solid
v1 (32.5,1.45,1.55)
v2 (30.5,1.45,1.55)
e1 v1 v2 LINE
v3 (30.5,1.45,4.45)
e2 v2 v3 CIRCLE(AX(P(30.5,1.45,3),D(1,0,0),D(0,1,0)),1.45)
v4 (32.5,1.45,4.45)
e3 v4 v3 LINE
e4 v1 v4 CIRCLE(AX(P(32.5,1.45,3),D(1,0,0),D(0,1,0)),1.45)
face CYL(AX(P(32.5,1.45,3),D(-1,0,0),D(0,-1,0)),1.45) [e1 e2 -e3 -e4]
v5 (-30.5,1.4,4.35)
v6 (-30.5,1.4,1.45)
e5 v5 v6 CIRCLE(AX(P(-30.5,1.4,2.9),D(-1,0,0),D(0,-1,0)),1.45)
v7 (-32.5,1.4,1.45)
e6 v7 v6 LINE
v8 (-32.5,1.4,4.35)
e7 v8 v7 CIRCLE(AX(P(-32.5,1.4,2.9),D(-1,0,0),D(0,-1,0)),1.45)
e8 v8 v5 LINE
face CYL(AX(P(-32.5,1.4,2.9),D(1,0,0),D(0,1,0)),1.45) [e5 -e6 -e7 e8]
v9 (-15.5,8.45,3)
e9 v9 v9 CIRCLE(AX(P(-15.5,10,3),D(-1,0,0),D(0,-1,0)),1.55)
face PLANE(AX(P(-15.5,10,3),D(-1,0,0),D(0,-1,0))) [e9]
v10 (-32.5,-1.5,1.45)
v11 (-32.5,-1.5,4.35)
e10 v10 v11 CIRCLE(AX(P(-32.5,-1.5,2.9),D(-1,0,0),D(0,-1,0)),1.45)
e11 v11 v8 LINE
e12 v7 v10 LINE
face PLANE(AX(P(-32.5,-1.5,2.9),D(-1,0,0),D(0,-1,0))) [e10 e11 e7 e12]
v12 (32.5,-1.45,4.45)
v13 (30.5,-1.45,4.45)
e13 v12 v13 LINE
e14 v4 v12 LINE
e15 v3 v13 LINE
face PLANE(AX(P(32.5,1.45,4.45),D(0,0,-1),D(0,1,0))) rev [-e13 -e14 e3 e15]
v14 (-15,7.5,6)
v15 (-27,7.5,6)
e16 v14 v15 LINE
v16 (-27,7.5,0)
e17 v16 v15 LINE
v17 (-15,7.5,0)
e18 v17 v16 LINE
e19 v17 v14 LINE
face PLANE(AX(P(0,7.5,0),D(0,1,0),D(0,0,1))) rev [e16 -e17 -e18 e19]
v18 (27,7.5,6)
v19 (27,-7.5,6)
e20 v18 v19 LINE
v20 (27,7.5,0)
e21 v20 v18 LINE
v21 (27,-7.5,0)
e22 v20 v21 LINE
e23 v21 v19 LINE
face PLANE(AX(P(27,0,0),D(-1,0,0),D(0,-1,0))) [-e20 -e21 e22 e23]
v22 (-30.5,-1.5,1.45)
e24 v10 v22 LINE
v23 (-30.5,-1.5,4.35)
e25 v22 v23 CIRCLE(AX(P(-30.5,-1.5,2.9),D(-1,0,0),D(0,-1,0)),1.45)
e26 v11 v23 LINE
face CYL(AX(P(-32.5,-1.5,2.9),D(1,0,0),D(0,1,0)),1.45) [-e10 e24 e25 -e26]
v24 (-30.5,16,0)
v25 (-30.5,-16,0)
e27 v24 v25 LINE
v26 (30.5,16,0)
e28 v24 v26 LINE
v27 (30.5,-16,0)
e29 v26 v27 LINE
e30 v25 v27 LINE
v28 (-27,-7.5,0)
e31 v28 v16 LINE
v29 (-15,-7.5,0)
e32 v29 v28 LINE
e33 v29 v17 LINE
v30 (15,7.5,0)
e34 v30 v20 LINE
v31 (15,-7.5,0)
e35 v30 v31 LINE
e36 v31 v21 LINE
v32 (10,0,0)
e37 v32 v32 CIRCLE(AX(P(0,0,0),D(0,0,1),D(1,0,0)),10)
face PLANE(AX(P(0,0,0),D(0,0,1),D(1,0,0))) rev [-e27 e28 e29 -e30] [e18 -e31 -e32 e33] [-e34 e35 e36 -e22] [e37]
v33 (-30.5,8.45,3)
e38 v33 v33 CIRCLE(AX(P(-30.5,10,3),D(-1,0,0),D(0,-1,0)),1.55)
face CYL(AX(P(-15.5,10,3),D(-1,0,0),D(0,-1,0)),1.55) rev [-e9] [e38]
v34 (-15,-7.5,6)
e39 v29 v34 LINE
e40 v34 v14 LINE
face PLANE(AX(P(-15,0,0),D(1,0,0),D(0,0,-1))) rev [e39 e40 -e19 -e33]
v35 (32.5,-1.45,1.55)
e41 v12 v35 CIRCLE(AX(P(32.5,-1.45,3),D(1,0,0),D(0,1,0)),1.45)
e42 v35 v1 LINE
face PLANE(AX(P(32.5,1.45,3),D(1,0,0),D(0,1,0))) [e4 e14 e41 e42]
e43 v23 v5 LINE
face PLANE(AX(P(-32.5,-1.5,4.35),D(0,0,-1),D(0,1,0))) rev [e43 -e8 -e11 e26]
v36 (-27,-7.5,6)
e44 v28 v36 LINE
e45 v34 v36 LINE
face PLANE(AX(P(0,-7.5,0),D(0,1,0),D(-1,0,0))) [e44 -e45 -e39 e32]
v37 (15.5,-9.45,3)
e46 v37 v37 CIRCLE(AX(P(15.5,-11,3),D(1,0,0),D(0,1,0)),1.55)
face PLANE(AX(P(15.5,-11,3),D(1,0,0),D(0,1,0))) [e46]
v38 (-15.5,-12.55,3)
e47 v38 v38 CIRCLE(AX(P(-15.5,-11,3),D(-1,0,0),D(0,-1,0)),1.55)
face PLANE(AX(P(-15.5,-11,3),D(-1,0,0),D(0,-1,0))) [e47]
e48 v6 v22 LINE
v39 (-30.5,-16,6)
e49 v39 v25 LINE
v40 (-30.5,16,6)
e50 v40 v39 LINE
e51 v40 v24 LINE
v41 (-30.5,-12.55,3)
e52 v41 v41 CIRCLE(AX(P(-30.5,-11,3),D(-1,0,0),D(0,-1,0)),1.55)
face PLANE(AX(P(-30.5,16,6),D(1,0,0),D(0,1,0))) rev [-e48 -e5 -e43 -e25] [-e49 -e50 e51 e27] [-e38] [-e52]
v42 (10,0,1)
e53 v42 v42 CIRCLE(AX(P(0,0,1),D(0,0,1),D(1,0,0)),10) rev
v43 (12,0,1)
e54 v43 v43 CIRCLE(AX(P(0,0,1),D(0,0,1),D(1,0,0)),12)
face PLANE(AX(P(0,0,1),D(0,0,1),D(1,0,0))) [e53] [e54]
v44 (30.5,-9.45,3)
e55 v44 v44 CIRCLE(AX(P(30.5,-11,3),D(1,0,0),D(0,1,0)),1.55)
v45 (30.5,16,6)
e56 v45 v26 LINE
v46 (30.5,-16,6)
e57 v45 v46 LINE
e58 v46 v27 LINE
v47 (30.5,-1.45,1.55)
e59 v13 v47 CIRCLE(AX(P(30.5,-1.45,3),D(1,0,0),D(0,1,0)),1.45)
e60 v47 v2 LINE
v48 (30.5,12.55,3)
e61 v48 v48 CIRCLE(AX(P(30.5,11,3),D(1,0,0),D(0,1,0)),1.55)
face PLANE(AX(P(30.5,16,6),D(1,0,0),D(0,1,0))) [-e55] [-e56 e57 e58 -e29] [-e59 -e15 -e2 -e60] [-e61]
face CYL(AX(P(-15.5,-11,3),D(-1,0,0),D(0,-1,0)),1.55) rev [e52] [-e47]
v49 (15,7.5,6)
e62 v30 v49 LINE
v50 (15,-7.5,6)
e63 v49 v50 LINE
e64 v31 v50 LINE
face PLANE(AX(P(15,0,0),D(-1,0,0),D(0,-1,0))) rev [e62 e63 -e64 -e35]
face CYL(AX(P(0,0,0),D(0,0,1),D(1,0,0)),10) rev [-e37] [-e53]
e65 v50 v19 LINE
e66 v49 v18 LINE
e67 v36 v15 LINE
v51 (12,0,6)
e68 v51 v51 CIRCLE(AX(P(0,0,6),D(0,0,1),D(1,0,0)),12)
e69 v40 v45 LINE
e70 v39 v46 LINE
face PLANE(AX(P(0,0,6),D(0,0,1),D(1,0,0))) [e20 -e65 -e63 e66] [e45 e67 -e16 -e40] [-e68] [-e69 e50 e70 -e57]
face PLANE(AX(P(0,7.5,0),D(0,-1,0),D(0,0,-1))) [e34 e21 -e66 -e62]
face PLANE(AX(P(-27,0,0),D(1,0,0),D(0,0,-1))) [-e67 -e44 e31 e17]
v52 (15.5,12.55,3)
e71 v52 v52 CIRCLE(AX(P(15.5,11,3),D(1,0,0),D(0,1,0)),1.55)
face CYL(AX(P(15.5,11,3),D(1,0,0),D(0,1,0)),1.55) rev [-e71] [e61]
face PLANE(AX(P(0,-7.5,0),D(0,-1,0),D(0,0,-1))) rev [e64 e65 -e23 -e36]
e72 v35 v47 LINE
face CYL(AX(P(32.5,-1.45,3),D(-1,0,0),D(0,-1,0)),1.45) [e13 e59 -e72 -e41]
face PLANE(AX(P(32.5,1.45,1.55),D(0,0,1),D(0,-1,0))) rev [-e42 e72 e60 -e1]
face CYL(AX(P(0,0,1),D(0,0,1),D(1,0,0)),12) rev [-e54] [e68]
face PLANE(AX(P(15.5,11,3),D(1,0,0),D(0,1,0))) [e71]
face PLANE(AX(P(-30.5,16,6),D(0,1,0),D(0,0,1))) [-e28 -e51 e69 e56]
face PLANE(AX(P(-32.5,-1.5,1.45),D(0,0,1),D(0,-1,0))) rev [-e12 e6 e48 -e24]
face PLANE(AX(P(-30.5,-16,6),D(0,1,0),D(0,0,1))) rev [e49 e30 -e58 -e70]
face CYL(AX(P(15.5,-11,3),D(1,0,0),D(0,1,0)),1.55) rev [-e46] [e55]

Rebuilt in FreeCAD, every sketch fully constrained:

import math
import FreeCAD as App
import Part
import Sketcher

V = App.Vector
Q = App.Units.Quantity

doc = App.newDocument("Part")
body = doc.addObject("PartDesign::Body", "Body")

# Sketch on XY plane
sketch1 = body.newObject("Sketcher::SketchObject", "Sketch")
sketch1.AttachmentSupport = (doc.getObject("XY_Plane"), [""])
sketch1.MapMode = "FlatFace"
sketch1.addGeometry(Part.LineSegment(V(-30.5, 16, 0), V(-30.5, -16, 0)), False)
sketch1.addGeometry(Part.LineSegment(V(-30.5, -16, 0), V(30.5, -16, 0)), False)
sketch1.addGeometry(Part.LineSegment(V(30.5, -16, 0), V(30.5, 16, 0)), False)
sketch1.addGeometry(Part.LineSegment(V(30.5, 16, 0), V(-30.5, 16, 0)), False)
sketch1.addConstraint(Sketcher.Constraint("Coincident", 0, 2, 1, 1))
sketch1.addConstraint(Sketcher.Constraint("Coincident", 1, 2, 2, 1))
sketch1.addConstraint(Sketcher.Constraint("Coincident", 2, 2, 3, 1))
sketch1.addConstraint(Sketcher.Constraint("Coincident", 3, 2, 0, 1))
sketch1.addConstraint(Sketcher.Constraint("Vertical", 0))
sketch1.addConstraint(Sketcher.Constraint("Horizontal", 1))
sketch1.addConstraint(Sketcher.Constraint("Vertical", 2))
sketch1.addConstraint(Sketcher.Constraint("Horizontal", 3))
sketch1.addConstraint(Sketcher.Constraint("Symmetric", 0, 2, 2, 2, -1, 1))
sketch1.addConstraint(Sketcher.Constraint("DistanceX", 1, 1, 1, 2, Q("61 mm")))
sketch1.addConstraint(Sketcher.Constraint("DistanceY", 0, 2, 0, 1, Q("32 mm")))
pad1 = body.newObject("PartDesign::Pad", "Pad")
pad1.Profile = sketch1
pad1.Length = 6

# Sketch on XY plane
sketch2 = body.newObject("Sketcher::SketchObject", "Sketch001")
sketch2.AttachmentSupport = (doc.getObject("XY_Plane"), [""])
sketch2.MapMode = "FlatFace"
sketch2.AttachmentOffset = App.Placement(V(0, 0, 6), App.Rotation())
sketch2.addGeometry(Part.Circle(V(0, 0, 0), V(0, 0, 1), 10), False)
sketch2.addConstraint(Sketcher.Constraint("Coincident", 0, 3, -1, 1))
sketch2.addConstraint(Sketcher.Constraint("Diameter", 0, Q("20 mm")))
pocket1 = body.newObject("PartDesign::Pocket", "Pocket")
pocket1.Profile = sketch2
pocket1.Length = 6

# Sketch on XY plane
sketch3 = body.newObject("Sketcher::SketchObject", "Sketch002")
sketch3.AttachmentSupport = (doc.getObject("XY_Plane"), [""])
sketch3.MapMode = "FlatFace"
sketch3.AttachmentOffset = App.Placement(V(0, 0, 6), App.Rotation())
sketch3.addGeometry(Part.Circle(V(0, 0, 0), V(0, 0, 1), 12), False)
sketch3.addConstraint(Sketcher.Constraint("Coincident", 0, 3, -1, 1))
sketch3.addConstraint(Sketcher.Constraint("Diameter", 0, Q("24 mm")))
pocket2 = body.newObject("PartDesign::Pocket", "Pocket001")
pocket2.Profile = sketch3
pocket2.Length = 5

# Sketch on XY plane
sketch4 = body.newObject("Sketcher::SketchObject", "Sketch003")
sketch4.AttachmentSupport = (doc.getObject("XY_Plane"), [""])
sketch4.MapMode = "FlatFace"
sketch4.AttachmentOffset = App.Placement(V(0, 0, 6), App.Rotation())
sketch4.addGeometry(Part.LineSegment(V(15, 7.5, 0), V(15, -7.5, 0)), False)
sketch4.addGeometry(Part.LineSegment(V(15, -7.5, 0), V(27, -7.5, 0)), False)
sketch4.addGeometry(Part.LineSegment(V(27, -7.5, 0), V(27, 7.5, 0)), False)
sketch4.addGeometry(Part.LineSegment(V(27, 7.5, 0), V(15, 7.5, 0)), False)
sketch4.addGeometry(Part.LineSegment(V(-27, 7.5, 0), V(-27, -7.5, 0)), False)
sketch4.addGeometry(Part.LineSegment(V(-27, -7.5, 0), V(-15, -7.5, 0)), False)
sketch4.addGeometry(Part.LineSegment(V(-15, -7.5, 0), V(-15, 7.5, 0)), False)
sketch4.addGeometry(Part.LineSegment(V(-15, 7.5, 0), V(-27, 7.5, 0)), False)
sketch4.addConstraint(Sketcher.Constraint("Coincident", 0, 2, 1, 1))
sketch4.addConstraint(Sketcher.Constraint("Coincident", 1, 2, 2, 1))
sketch4.addConstraint(Sketcher.Constraint("Coincident", 2, 2, 3, 1))
sketch4.addConstraint(Sketcher.Constraint("Coincident", 3, 2, 0, 1))
sketch4.addConstraint(Sketcher.Constraint("Coincident", 4, 2, 5, 1))
sketch4.addConstraint(Sketcher.Constraint("Coincident", 5, 2, 6, 1))
sketch4.addConstraint(Sketcher.Constraint("Coincident", 6, 2, 7, 1))
sketch4.addConstraint(Sketcher.Constraint("Coincident", 7, 2, 4, 1))
sketch4.addConstraint(Sketcher.Constraint("Vertical", 0))
sketch4.addConstraint(Sketcher.Constraint("Horizontal", 1))
sketch4.addConstraint(Sketcher.Constraint("Vertical", 2))
sketch4.addConstraint(Sketcher.Constraint("Horizontal", 3))
sketch4.addConstraint(Sketcher.Constraint("Vertical", 4))
sketch4.addConstraint(Sketcher.Constraint("Horizontal", 5))
sketch4.addConstraint(Sketcher.Constraint("Vertical", 6))
sketch4.addConstraint(Sketcher.Constraint("Horizontal", 7))
sketch4.addConstraint(Sketcher.Constraint("Symmetric", 2, 2, 4, 2, -1, 1))
sketch4.addConstraint(Sketcher.Constraint("Symmetric", 0, 2, 6, 2, -1, 1))
sketch4.addConstraint(Sketcher.Constraint("Horizontal", 1, 2, 4, 2))
sketch4.addConstraint(Sketcher.Constraint("DistanceX", 1, 1, 1, 2, Q("12 mm")))
sketch4.addConstraint(Sketcher.Constraint("DistanceY", 0, 2, 0, 1, Q("15 mm")))
sketch4.addConstraint(Sketcher.Constraint("DistanceX", -1, 1, 0, 2, Q("15 mm")))
pocket3 = body.newObject("PartDesign::Pocket", "Pocket002")
pocket3.Profile = sketch4
pocket3.Length = 6

# Sketch on YZ plane
sketch5 = body.newObject("Sketcher::SketchObject", "Sketch004")
sketch5.AttachmentSupport = (doc.getObject("YZ_Plane"), [""])
sketch5.MapMode = "FlatFace"
sketch5.AttachmentOffset = App.Placement(V(0, 0, -30.5), App.Rotation())
sketch5.addGeometry(Part.LineSegment(V(1.4, 1.45, 0), V(-1.5, 1.45, 0)), False)
sketch5.addGeometry(Part.ArcOfCircle(Part.Circle(V(-1.5, 2.9, 0), V(0, 0, 1), 1.45), math.radians(90), math.radians(270)), False)
sketch5.addGeometry(Part.LineSegment(V(-1.5, 4.35, 0), V(1.4, 4.35, 0)), False)
sketch5.addGeometry(Part.ArcOfCircle(Part.Circle(V(1.4, 2.9, 0), V(0, 0, 1), 1.45), math.radians(-90), math.radians(90)), False)
sketch5.addConstraint(Sketcher.Constraint("Tangent", 0, 2, 1, 2))
sketch5.addConstraint(Sketcher.Constraint("Tangent", 1, 1, 2, 1))
sketch5.addConstraint(Sketcher.Constraint("Tangent", 2, 2, 3, 2))
sketch5.addConstraint(Sketcher.Constraint("Tangent", 3, 1, 0, 1))
sketch5.addConstraint(Sketcher.Constraint("Horizontal", 0))
sketch5.addConstraint(Sketcher.Constraint("Horizontal", 2))
sketch5.addConstraint(Sketcher.Constraint("Radius", 1, Q("1.45 mm")))
sketch5.addConstraint(Sketcher.Constraint("DistanceX", 0, 2, 0, 1, Q("2.9 mm")))
sketch5.addConstraint(Sketcher.Constraint("DistanceX", 1, 3, -1, 1, Q("1.5 mm")))
sketch5.addConstraint(Sketcher.Constraint("DistanceY", -1, 1, 1, 3, Q("2.9 mm")))
pad2 = body.newObject("PartDesign::Pad", "Pad001")
pad2.Profile = sketch5
pad2.Length = 2
pad2.Reversed = True

# Sketch on YZ plane
sketch6 = body.newObject("Sketcher::SketchObject", "Sketch005")
sketch6.AttachmentSupport = (doc.getObject("YZ_Plane"), [""])
sketch6.MapMode = "FlatFace"
sketch6.AttachmentOffset = App.Placement(V(0, 0, 30.5), App.Rotation())
sketch6.addGeometry(Part.LineSegment(V(-1.45, 1.55, 0), V(1.45, 1.55, 0)), False)
sketch6.addGeometry(Part.ArcOfCircle(Part.Circle(V(1.45, 3, 0), V(0, 0, 1), 1.45), math.radians(-90), math.radians(90)), False)
sketch6.addGeometry(Part.LineSegment(V(1.45, 4.45, 0), V(-1.45, 4.45, 0)), False)
sketch6.addGeometry(Part.ArcOfCircle(Part.Circle(V(-1.45, 3, 0), V(0, 0, 1), 1.45), math.radians(90), math.radians(270)), False)
sketch6.addConstraint(Sketcher.Constraint("Tangent", 0, 2, 1, 1))
sketch6.addConstraint(Sketcher.Constraint("Tangent", 1, 2, 2, 1))
sketch6.addConstraint(Sketcher.Constraint("Tangent", 2, 2, 3, 1))
sketch6.addConstraint(Sketcher.Constraint("Tangent", 3, 2, 0, 1))
sketch6.addConstraint(Sketcher.Constraint("Horizontal", 0))
sketch6.addConstraint(Sketcher.Constraint("Horizontal", 2))
sketch6.addConstraint(Sketcher.Constraint("Radius", 1, Q("1.45 mm")))
sketch6.addConstraint(Sketcher.Constraint("DistanceX", 0, 1, 0, 2, Q("2.9 mm")))
sketch6.addConstraint(Sketcher.Constraint("DistanceY", -1, 1, 1, 3, Q("3 mm")))
sketch6.addConstraint(Sketcher.Constraint("DistanceX", -1, 1, 1, 3, Q("1.45 mm")))
pad3 = body.newObject("PartDesign::Pad", "Pad002")
pad3.Profile = sketch6
pad3.Length = 2

# Sketch on YZ plane
sketch7 = body.newObject("Sketcher::SketchObject", "Sketch006")
sketch7.AttachmentSupport = (doc.getObject("YZ_Plane"), [""])
sketch7.MapMode = "FlatFace"
sketch7.AttachmentOffset = App.Placement(V(0, 0, -30.5), App.Rotation())
sketch7.addGeometry(Part.Circle(V(10, 3, 0), V(0, 0, 1), 1.55), False)
sketch7.addGeometry(Part.Circle(V(-11, 3, 0), V(0, 0, 1), 1.55), False)
sketch7.addConstraint(Sketcher.Constraint("Equal", 0, 1))
sketch7.addConstraint(Sketcher.Constraint("Horizontal", 0, 3, 1, 3))
sketch7.addConstraint(Sketcher.Constraint("Diameter", 0, Q("3.1 mm")))
sketch7.addConstraint(Sketcher.Constraint("DistanceX", -1, 1, 0, 3, Q("10 mm")))
sketch7.addConstraint(Sketcher.Constraint("DistanceY", -1, 1, 0, 3, Q("3 mm")))
sketch7.addConstraint(Sketcher.Constraint("DistanceX", 1, 3, -1, 1, Q("11 mm")))
pocket4 = body.newObject("PartDesign::Pocket", "Pocket003")
pocket4.Profile = sketch7
pocket4.Length = 15
pocket4.Reversed = True

# Sketch on YZ plane
sketch8 = body.newObject("Sketcher::SketchObject", "Sketch007")
sketch8.AttachmentSupport = (doc.getObject("YZ_Plane"), [""])
sketch8.MapMode = "FlatFace"
sketch8.AttachmentOffset = App.Placement(V(0, 0, 30.5), App.Rotation())
sketch8.addGeometry(Part.Circle(V(11, 3, 0), V(0, 0, 1), 1.55), False)
sketch8.addGeometry(Part.Circle(V(-11, 3, 0), V(0, 0, 1), 1.55), False)
sketch8.addConstraint(Sketcher.Constraint("Equal", 0, 1))
sketch8.addConstraint(Sketcher.Constraint("Symmetric", 0, 3, 1, 3, -2))
sketch8.addConstraint(Sketcher.Constraint("Diameter", 0, Q("3.1 mm")))
sketch8.addConstraint(Sketcher.Constraint("DistanceX", -1, 1, 0, 3, Q("11 mm")))
sketch8.addConstraint(Sketcher.Constraint("DistanceY", -1, 1, 0, 3, Q("3 mm")))
pocket5 = body.newObject("PartDesign::Pocket", "Pocket004")
pocket5.Profile = sketch8
pocket5.Length = 15

doc.recompute()
